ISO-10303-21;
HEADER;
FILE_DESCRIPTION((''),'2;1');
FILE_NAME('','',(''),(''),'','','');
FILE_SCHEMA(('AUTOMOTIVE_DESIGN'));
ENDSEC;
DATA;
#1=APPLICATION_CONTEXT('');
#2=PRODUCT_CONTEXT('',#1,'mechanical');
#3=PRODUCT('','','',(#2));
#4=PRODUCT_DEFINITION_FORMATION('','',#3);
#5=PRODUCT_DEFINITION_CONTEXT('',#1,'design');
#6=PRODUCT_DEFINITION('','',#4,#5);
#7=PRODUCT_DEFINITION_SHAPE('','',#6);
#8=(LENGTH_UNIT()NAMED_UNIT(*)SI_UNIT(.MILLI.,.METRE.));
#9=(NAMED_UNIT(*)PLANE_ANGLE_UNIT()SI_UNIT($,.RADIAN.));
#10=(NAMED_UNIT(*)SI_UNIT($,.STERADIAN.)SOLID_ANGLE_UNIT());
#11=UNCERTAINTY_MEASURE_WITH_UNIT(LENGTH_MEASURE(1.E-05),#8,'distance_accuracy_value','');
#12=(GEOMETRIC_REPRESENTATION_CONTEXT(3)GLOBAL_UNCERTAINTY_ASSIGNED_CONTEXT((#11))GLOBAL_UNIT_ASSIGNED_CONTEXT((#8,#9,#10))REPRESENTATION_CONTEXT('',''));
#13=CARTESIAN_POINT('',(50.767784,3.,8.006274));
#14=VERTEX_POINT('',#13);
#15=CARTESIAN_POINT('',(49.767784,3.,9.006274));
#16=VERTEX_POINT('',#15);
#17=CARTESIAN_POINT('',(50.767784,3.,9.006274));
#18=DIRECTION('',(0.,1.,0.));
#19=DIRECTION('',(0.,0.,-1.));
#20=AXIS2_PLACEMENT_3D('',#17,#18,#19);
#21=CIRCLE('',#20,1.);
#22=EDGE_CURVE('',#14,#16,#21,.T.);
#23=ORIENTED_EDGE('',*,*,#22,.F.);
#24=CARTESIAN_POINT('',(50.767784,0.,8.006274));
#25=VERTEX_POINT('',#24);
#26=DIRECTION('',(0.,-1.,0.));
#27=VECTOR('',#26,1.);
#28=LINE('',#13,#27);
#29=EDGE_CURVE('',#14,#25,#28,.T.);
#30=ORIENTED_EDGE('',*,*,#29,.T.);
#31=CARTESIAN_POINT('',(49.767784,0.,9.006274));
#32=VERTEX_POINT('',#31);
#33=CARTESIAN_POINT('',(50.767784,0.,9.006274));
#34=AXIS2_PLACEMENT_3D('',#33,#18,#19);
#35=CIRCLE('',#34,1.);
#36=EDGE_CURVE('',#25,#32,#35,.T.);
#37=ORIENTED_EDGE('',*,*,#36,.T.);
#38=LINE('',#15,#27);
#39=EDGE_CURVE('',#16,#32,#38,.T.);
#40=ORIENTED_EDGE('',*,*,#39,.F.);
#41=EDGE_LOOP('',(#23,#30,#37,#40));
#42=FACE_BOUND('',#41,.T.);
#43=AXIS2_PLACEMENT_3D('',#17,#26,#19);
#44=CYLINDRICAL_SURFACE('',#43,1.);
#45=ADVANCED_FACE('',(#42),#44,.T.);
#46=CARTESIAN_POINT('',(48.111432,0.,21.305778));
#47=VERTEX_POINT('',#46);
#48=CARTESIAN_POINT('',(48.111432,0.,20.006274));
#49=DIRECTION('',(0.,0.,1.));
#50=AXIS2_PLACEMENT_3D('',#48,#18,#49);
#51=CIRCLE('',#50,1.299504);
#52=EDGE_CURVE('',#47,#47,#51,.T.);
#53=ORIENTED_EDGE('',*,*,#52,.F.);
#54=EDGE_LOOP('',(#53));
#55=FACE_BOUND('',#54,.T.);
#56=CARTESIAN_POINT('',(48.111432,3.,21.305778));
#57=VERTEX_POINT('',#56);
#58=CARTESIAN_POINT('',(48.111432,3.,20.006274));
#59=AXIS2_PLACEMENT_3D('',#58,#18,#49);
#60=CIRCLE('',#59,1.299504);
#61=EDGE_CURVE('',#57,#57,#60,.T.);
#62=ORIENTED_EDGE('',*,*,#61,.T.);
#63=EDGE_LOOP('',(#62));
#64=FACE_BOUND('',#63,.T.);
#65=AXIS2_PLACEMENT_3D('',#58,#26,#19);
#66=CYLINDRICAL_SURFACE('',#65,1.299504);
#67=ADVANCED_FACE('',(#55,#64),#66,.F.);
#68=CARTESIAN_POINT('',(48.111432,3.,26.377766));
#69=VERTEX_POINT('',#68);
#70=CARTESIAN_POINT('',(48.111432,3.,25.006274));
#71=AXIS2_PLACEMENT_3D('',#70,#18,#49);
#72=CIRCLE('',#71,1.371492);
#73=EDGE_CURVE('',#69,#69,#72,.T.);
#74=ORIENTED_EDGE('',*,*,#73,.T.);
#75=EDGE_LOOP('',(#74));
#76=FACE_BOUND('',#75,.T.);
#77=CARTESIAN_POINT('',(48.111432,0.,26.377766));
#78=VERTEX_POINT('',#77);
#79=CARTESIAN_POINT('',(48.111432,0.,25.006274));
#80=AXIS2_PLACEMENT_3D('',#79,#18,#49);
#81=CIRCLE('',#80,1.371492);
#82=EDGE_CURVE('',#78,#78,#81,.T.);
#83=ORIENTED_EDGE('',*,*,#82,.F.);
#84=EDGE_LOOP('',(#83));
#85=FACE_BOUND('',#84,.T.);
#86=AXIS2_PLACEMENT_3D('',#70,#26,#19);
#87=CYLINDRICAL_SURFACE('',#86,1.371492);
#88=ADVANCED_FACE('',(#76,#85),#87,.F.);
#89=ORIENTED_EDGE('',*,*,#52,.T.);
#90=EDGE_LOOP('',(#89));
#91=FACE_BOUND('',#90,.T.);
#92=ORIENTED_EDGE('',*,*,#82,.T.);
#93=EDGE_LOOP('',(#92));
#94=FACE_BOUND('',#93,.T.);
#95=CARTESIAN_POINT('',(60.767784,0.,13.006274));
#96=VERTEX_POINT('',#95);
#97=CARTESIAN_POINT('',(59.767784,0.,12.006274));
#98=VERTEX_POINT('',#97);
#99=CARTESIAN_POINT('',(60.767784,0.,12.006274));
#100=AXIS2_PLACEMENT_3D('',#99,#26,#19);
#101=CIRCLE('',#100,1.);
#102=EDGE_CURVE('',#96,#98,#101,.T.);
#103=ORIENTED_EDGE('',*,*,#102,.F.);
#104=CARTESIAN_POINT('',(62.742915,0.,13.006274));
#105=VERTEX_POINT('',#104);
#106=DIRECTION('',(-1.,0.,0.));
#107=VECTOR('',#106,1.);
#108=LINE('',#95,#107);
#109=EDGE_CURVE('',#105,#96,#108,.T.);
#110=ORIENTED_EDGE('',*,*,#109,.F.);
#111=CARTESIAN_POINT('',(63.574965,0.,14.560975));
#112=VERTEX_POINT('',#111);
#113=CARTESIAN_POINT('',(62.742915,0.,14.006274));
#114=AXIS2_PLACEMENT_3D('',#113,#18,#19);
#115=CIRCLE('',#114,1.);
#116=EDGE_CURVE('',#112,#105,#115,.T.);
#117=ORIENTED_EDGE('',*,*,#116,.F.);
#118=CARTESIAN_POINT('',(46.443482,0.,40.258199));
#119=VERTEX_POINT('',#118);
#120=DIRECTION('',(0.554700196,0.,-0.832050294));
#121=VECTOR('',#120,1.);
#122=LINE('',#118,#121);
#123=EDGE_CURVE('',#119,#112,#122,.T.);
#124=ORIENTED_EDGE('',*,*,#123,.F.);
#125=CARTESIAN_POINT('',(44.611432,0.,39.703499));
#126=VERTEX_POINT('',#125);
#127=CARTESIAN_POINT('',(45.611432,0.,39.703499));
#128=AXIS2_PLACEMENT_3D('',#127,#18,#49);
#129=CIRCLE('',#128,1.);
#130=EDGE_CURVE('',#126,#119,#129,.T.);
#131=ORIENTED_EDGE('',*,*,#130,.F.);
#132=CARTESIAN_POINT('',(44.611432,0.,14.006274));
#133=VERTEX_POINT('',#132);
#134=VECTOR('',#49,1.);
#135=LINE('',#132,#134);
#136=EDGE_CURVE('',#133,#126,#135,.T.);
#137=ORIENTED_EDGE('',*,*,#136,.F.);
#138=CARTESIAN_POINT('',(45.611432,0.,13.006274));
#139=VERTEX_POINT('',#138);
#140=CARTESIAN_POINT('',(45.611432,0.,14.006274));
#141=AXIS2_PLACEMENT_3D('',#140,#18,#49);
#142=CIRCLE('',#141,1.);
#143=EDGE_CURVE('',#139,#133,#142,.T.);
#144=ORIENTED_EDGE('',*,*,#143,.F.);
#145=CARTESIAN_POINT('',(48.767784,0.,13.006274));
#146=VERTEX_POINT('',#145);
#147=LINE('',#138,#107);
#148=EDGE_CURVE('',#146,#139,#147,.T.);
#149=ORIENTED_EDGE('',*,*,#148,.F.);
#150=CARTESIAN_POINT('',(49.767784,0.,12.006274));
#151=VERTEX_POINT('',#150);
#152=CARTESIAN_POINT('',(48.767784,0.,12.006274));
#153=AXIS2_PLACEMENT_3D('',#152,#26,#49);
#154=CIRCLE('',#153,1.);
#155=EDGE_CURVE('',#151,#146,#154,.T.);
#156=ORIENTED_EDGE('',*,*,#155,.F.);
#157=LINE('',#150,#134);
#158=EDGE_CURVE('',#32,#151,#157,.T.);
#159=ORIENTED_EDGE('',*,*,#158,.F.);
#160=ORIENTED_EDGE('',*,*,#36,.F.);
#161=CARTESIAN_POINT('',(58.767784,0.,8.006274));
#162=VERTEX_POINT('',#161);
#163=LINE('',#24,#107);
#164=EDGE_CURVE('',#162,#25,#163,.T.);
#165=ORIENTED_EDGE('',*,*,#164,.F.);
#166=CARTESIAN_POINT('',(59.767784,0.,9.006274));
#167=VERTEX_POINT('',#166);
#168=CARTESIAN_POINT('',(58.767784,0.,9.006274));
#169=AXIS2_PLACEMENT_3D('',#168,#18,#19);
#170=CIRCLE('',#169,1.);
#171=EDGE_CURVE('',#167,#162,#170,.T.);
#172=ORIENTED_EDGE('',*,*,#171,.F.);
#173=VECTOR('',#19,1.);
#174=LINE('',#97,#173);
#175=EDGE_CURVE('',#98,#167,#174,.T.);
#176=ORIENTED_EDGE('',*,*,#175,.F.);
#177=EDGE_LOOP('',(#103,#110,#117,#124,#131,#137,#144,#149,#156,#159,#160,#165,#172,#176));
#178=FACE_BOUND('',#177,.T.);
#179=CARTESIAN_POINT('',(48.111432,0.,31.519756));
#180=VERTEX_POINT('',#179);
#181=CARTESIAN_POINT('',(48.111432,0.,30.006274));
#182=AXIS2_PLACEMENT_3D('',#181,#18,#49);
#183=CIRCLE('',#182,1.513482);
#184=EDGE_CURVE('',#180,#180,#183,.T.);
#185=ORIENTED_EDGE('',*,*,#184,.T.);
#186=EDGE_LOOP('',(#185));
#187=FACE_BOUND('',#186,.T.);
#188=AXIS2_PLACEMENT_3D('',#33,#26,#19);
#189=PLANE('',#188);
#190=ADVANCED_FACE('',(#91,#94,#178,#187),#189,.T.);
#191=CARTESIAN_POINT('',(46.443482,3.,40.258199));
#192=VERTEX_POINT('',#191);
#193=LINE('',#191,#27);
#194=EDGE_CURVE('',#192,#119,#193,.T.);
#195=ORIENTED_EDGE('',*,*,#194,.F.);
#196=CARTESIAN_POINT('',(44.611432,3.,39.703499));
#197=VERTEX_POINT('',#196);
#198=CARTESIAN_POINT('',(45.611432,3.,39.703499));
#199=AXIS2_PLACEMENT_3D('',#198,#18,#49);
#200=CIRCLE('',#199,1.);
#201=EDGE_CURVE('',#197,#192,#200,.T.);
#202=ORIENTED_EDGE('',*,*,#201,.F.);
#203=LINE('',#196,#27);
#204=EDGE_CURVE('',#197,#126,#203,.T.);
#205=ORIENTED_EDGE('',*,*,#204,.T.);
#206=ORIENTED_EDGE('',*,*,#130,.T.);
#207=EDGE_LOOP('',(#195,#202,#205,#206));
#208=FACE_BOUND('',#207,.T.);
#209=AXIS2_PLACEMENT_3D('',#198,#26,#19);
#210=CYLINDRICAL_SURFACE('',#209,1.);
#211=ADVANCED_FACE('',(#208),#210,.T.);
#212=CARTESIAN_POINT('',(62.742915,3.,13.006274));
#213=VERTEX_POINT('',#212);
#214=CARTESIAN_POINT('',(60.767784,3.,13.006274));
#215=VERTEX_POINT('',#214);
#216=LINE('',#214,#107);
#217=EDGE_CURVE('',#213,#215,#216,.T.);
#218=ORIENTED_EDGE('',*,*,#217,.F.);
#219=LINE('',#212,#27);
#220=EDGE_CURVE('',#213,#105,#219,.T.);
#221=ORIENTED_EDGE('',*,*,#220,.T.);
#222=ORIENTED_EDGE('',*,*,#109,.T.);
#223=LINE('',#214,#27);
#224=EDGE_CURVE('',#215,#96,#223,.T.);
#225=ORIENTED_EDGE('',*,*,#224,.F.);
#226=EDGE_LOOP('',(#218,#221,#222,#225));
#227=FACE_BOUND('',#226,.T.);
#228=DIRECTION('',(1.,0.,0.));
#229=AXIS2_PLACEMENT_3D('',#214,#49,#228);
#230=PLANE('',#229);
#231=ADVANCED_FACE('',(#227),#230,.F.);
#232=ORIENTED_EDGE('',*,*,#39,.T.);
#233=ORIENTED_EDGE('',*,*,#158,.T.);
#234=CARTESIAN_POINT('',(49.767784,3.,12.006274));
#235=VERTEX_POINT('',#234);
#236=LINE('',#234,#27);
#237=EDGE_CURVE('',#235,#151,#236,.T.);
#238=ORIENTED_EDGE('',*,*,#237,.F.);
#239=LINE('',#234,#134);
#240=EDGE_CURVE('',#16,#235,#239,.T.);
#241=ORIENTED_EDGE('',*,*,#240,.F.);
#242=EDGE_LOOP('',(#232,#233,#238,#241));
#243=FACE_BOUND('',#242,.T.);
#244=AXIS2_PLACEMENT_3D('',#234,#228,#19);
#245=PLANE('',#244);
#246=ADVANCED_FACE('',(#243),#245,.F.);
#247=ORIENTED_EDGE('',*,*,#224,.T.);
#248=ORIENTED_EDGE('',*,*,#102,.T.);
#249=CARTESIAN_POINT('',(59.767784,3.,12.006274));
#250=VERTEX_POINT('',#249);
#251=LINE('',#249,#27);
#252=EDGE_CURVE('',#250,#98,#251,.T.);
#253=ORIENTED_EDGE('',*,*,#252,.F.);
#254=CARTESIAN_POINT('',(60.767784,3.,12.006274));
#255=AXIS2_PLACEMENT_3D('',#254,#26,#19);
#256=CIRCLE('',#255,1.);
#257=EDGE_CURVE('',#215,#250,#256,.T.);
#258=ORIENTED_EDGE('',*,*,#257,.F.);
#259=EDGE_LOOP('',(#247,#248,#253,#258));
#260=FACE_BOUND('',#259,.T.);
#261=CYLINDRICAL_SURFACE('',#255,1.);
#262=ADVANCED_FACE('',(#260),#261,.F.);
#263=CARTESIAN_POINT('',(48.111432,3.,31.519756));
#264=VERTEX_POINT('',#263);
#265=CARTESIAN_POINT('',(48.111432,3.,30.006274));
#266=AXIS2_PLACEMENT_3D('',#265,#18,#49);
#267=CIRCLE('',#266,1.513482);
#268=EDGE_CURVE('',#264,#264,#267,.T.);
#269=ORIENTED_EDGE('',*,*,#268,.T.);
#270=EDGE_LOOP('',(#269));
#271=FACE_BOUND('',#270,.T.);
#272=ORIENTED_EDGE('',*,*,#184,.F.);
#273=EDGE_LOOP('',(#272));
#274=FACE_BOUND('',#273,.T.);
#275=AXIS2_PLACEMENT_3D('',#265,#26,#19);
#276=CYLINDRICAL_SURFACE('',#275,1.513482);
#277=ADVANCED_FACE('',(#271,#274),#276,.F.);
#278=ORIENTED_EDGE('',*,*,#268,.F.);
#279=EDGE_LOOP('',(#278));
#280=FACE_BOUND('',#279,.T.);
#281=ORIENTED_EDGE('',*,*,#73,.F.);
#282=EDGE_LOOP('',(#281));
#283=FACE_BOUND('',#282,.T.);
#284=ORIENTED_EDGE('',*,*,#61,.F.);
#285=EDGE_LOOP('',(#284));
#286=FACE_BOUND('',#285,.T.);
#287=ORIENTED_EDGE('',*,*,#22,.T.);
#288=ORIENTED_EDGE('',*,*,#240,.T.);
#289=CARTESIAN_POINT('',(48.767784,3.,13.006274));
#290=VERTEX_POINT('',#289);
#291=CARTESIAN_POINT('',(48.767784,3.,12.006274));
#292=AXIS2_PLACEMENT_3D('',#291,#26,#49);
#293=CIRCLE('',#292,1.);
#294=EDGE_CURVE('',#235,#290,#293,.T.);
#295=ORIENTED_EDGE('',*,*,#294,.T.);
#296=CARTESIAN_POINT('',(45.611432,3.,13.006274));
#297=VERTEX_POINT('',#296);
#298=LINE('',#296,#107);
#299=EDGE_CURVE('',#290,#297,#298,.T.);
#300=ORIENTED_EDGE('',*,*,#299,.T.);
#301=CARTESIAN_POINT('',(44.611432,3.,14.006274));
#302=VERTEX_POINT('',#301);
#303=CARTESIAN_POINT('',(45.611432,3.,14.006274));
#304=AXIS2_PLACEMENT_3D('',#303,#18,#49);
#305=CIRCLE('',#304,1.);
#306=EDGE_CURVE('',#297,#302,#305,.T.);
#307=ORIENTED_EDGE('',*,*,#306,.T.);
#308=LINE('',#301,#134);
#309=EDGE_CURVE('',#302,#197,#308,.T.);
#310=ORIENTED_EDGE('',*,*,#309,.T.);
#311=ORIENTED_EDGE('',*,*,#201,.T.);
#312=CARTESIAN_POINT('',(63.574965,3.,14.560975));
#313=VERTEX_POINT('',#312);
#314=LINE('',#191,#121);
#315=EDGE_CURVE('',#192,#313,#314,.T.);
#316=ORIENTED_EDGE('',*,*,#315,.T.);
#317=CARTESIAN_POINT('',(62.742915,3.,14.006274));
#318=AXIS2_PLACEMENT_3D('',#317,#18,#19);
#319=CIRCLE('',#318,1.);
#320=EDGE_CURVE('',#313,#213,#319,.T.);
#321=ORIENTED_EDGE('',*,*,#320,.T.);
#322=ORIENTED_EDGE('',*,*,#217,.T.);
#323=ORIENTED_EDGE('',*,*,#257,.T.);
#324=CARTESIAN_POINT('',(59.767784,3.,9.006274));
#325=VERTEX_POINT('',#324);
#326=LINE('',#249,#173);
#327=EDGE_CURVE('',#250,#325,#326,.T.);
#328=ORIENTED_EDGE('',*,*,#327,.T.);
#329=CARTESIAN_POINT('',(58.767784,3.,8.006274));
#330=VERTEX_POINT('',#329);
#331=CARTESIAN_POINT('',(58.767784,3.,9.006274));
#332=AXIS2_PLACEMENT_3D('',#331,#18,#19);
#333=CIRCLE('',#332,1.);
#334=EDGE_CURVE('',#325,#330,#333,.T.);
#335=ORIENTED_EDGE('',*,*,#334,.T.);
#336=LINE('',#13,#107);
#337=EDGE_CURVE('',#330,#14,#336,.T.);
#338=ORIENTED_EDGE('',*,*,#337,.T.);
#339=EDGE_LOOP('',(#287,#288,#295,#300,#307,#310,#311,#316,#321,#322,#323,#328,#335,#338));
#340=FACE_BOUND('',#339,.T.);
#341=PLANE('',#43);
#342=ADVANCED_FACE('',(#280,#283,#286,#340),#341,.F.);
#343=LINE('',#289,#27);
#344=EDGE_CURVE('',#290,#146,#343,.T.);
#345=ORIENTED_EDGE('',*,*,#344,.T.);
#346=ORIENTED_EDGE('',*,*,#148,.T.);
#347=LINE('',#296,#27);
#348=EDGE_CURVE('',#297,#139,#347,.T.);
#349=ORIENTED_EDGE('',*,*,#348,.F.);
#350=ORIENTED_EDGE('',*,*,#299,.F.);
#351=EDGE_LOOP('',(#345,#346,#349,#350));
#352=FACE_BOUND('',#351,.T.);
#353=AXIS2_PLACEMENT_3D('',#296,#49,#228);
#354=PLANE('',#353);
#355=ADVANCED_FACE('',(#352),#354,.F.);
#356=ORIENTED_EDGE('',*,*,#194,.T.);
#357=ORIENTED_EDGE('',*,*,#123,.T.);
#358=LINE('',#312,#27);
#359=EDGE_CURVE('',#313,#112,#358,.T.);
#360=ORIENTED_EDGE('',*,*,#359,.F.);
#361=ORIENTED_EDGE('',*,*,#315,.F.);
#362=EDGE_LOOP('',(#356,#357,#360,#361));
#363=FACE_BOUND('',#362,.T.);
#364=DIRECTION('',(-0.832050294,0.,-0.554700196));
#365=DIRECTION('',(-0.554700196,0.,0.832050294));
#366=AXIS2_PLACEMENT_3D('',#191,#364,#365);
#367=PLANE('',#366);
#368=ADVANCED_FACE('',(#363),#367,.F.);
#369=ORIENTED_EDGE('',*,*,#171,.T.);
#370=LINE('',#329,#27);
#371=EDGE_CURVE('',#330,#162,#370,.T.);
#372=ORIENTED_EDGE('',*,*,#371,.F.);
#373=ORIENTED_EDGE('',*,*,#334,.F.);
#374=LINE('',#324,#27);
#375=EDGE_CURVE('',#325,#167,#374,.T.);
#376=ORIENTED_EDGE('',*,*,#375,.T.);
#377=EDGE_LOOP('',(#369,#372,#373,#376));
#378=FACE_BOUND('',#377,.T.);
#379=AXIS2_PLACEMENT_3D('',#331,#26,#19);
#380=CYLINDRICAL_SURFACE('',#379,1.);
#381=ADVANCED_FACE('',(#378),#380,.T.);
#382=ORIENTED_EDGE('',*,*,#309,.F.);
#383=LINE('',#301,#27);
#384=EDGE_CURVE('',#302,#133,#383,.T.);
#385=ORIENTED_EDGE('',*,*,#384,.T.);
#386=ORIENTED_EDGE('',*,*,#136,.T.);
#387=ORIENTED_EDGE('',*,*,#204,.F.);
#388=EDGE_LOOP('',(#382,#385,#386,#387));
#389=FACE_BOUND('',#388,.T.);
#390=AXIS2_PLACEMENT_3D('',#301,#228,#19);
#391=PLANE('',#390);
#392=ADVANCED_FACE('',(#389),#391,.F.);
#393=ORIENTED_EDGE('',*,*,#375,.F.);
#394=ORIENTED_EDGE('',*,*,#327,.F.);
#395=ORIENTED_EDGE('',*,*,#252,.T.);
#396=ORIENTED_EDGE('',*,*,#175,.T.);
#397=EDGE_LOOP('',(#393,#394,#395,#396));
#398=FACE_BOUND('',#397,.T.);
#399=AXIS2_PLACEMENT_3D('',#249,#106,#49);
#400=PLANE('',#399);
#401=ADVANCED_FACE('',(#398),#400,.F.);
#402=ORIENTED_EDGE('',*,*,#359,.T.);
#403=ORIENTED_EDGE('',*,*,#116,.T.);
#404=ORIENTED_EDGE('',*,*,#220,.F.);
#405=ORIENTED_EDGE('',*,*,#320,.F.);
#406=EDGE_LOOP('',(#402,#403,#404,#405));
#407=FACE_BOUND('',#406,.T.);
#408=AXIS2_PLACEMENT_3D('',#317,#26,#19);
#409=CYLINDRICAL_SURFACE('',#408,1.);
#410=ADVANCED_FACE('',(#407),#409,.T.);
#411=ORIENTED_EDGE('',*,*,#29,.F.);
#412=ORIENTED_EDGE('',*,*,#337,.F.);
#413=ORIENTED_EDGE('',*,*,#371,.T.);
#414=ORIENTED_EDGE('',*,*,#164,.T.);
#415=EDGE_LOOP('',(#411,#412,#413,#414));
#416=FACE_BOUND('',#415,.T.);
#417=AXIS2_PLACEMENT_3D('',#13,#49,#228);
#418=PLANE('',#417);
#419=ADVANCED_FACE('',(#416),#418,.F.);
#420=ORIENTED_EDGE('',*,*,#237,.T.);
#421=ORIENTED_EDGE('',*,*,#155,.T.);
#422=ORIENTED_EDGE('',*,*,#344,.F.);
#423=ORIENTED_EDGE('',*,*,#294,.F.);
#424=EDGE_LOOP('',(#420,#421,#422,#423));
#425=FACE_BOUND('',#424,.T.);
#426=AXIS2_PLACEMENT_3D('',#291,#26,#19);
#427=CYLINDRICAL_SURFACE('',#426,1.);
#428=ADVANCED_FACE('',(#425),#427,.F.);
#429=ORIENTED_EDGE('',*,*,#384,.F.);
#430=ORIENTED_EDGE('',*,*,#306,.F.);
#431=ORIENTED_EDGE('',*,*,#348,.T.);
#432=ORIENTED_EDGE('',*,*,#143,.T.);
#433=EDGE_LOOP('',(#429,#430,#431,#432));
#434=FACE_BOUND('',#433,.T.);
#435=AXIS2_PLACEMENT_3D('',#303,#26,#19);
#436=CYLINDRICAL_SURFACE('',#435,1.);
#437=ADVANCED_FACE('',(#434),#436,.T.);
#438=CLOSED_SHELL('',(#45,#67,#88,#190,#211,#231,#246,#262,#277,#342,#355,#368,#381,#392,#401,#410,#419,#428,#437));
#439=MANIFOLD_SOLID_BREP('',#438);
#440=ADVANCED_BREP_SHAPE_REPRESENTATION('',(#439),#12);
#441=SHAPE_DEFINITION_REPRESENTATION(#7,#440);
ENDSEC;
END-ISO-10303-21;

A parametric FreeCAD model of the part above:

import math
import FreeCAD as App
import Part
import Sketcher
from FreeCAD import Vector
Q = App.Units.Quantity

doc = App.newDocument("Part")
body = doc.addObject("PartDesign::Body", "Body")

# Sketch on XZ plane
sketch1 = body.newObject("Sketcher::SketchObject", "Sketch")
sketch1.AttachmentSupport = (doc.getObject("XZ_Plane"), [""])
sketch1.MapMode = "FlatFace"
sketch1.addGeometry([
    Part.LineSegment(Vector(46.443482, 40.258199, 0), Vector(63.574965, 14.560975, 0)),  # 0
    Part.ArcOfCircle(Part.Circle(Vector(62.742915, 14.006274, 0), Vector(0, 0, 1), 1), math.radians(-90), math.radians(33.690067)),  # 1
    Part.LineSegment(Vector(62.742915, 13.006274, 0), Vector(60.767784, 13.006274, 0)),  # 2
    Part.ArcOfCircle(Part.Circle(Vector(60.767784, 12.006274, 0), Vector(0, 0, 1), 1), math.radians(90), math.radians(180)),  # 3
    Part.LineSegment(Vector(59.767784, 12.006274, 0), Vector(59.767784, 9.006274, 0)),  # 4
    Part.ArcOfCircle(Part.Circle(Vector(58.767784, 9.006274, 0), Vector(0, 0, 1), 1), math.radians(-90), math.radians(0)),  # 5
    Part.LineSegment(Vector(58.767784, 8.006274, 0), Vector(50.767784, 8.006274, 0)),  # 6
    Part.ArcOfCircle(Part.Circle(Vector(50.767784, 9.006274, 0), Vector(0, 0, 1), 1), math.radians(-180), math.radians(-90)),  # 7
    Part.LineSegment(Vector(49.767784, 9.006274, 0), Vector(49.767784, 12.006274, 0)),  # 8
    Part.ArcOfCircle(Part.Circle(Vector(48.767784, 12.006274, 0), Vector(0, 0, 1), 1), math.radians(0), math.radians(90)),  # 9
    Part.LineSegment(Vector(48.767784, 13.006274, 0), Vector(45.611432, 13.006274, 0)),  # 10
    Part.ArcOfCircle(Part.Circle(Vector(45.611432, 14.006274, 0), Vector(0, 0, 1), 1), math.radians(-180), math.radians(-90)),  # 11
    Part.LineSegment(Vector(44.611432, 14.006274, 0), Vector(44.611432, 39.703499, 0)),  # 12
    Part.ArcOfCircle(Part.Circle(Vector(45.611432, 39.703499, 0), Vector(0, 0, 1), 1), math.radians(33.690068), math.radians(180)),  # 13
    Part.Circle(Vector(48.111432, 30.006274, 0), Vector(0, 0, 1), 1.513482),  # 14
    Part.Circle(Vector(48.111432, 25.006274, 0), Vector(0, 0, 1), 1.371492),  # 15
    Part.Circle(Vector(48.111432, 20.006274, 0), Vector(0, 0, 1), 1.299504),  # 16
], False)
sketch1.addConstraint([
    Sketcher.Constraint("Tangent", 0, 2, 1, 2),
    Sketcher.Constraint("Tangent", 1, 1, 2, 1),
    Sketcher.Constraint("Tangent", 2, 2, 3, 1),
    Sketcher.Constraint("Tangent", 3, 2, 4, 1),
    Sketcher.Constraint("Tangent", 4, 2, 5, 2),
    Sketcher.Constraint("Tangent", 5, 1, 6, 1),
    Sketcher.Constraint("Tangent", 6, 2, 7, 2),
    Sketcher.Constraint("Tangent", 7, 1, 8, 1),
    Sketcher.Constraint("Tangent", 8, 2, 9, 1),
    Sketcher.Constraint("Tangent", 9, 2, 10, 1),
    Sketcher.Constraint("Tangent", 10, 2, 11, 2),
    Sketcher.Constraint("Tangent", 11, 1, 12, 1),
    Sketcher.Constraint("Tangent", 12, 2, 13, 2),
    Sketcher.Constraint("Tangent", 13, 1, 0, 1),
    Sketcher.Constraint("Horizontal", 2),
    Sketcher.Constraint("Vertical", 4),
    Sketcher.Constraint("Horizontal", 6),
    Sketcher.Constraint("Vertical", 8),
    Sketcher.Constraint("Horizontal", 10),
    Sketcher.Constraint("Vertical", 12),
    Sketcher.Constraint("Equal", 1, 3),
    Sketcher.Constraint("Equal", 3, 5),
    Sketcher.Constraint("Equal", 5, 7),
    Sketcher.Constraint("Equal", 7, 9),
    Sketcher.Constraint("Equal", 9, 11),
    Sketcher.Constraint("Equal", 11, 13),
    Sketcher.Constraint("Horizontal", 3, 3, 9, 3),
    Sketcher.Constraint("Vertical", 14, 3, 15, 3),
    Sketcher.Constraint("Vertical", 15, 3, 16, 3),
    Sketcher.Constraint("Radius", 1, Q("1 mm")),
    Sketcher.Constraint("DistanceX", 6, 2, 6, 1, Q("8 mm")),
    Sketcher.Constraint("DistanceY", 4, 2, 4, 1, Q("3 mm")),
    Sketcher.Constraint("DistanceY", 11, 3, 14, 3, Q("16 mm")),
    Sketcher.Constraint("DistanceY", 15, 3, 14, 3, Q("5 mm")),
    Sketcher.Constraint("DistanceY", 16, 3, 15, 3, Q("5 mm")),
    Sketcher.Constraint("DistanceX", 13, 3, 14, 3, Q("2.5 mm")),
    Sketcher.Constraint("Diameter", 14, Q("3.026963 mm")),
    Sketcher.Constraint("Diameter", 15, Q("2.742983 mm")),
    Sketcher.Constraint("Diameter", 16, Q("2.599008 mm")),
    Sketcher.Constraint("DistanceX", 2, 2, 2, 1, Q("1.975131 mm")),
    Sketcher.Constraint("DistanceY", -1, 1, 13, 3, Q("39.703499 mm")),
    Sketcher.Constraint("DistanceY", -1, 1, 13, 1, Q("40.258199 mm")),
    Sketcher.Constraint("Distance", 0, Q("30.88422 mm")),
    Sketcher.Constraint("DistanceX", -1, 1, 11, 3, Q("45.611432 mm")),
])
pad1 = body.newObject("PartDesign::Pad", "Pad")
pad1.Profile = sketch1
pad1.Length = 3
pad1.Reversed = True

doc.recompute()
